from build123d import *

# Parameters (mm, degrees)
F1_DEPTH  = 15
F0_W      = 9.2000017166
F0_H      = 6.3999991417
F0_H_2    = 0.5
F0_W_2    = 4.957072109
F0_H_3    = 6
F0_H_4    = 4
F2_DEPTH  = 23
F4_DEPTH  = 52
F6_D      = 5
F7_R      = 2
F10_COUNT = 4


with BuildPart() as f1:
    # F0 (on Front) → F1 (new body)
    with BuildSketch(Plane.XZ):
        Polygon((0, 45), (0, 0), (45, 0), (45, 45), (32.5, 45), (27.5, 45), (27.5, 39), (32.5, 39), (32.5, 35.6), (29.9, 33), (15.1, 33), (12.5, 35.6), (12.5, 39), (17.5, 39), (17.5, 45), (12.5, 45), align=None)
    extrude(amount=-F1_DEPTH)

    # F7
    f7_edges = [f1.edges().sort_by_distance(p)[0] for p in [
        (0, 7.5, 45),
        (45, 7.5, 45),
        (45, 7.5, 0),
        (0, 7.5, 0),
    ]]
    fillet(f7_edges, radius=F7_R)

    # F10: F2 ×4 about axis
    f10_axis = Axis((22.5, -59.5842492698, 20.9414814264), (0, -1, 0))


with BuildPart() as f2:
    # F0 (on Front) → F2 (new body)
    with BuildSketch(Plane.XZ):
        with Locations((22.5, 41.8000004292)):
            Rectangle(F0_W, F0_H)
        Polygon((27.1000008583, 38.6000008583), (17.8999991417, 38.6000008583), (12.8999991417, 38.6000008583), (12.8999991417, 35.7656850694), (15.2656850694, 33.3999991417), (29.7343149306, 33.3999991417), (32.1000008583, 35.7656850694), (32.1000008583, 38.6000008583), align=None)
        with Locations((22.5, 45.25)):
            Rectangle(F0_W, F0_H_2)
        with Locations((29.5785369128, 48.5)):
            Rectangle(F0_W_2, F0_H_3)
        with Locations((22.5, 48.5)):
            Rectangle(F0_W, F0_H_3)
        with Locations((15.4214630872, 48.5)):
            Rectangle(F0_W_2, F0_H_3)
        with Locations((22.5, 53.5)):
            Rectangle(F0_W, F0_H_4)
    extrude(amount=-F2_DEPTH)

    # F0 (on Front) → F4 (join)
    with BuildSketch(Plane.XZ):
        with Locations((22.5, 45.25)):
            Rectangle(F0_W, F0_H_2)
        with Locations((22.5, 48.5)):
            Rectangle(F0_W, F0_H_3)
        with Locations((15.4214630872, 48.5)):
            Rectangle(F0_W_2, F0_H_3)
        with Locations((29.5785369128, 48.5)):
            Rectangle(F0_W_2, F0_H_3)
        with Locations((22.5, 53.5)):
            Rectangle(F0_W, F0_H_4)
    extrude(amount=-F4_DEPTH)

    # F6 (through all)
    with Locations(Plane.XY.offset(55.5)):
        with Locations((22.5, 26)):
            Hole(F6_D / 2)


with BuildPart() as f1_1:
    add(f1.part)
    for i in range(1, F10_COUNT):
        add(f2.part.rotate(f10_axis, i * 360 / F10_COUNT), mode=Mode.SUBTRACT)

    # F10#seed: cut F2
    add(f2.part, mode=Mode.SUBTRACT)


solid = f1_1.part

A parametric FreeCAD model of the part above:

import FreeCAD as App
import Part
import Sketcher


def edges_at(feature, points):
    """Names of the edges that pass closest to the given points."""
    edges = feature.Shape.Edges
    near = lambda p: min(range(len(edges)), key=lambda i: edges[i].distToShape(Part.Vertex(*p))[0])
    return sorted({f"Edge{near(p) + 1}" for p in points})

doc = App.newDocument("Part")
params = doc.addObject("Spreadsheet::Sheet", "Params")
for row, (alias, value) in enumerate([
    ("sketch1_width", "45 mm"),
    ("sketch1_width2", "5 mm"),
    ("sketch1_height", "6 mm"),
    ("sketch1_width3", "17.5 mm"),
    ("sketch1_width4", "14.8 mm"),
    ("pad1_length", "15 mm"),
    ("fillet_radius", "2 mm"),
    ("sketch2_width", "5 mm"),
    ("sketch2_height", "6 mm"),
    ("sketch2_height2", "4 mm"),
    ("sketch2_width2", "9.200002 mm"),
    ("sketch2_height3", "6.899999 mm"),
    ("pad2_length", "23 mm"),
    ("sketch3_height", "6 mm"),
    ("sketch3_height2", "4 mm"),
    ("sketch3_width", "9.200002 mm"),
    ("sketch3_height3", "0.5 mm"),
    ("pad3_length", "52 mm"),
    ("sketch4_diameter", "5 mm"),
    ("hole_diameter", "5 mm"),
], start=1):
    params.set(f"A{row}", alias)
    params.set(f"B{row}", "=" + value)
    params.setAlias(f"B{row}", alias)

body = doc.addObject("PartDesign::Body", "Body")

# Sketch on XZ plane
sketch1 = body.newObject("Sketcher::SketchObject", "Sketch")
sketch1.AttachmentSupport = (doc.getObject("XZ_Plane"), [""])
sketch1.MapMode = "FlatFace"
sketch1.addGeometry([
    Part.LineSegment(App.Vector(0, 45, 0), App.Vector(0, 0, 0)),  # 0
    Part.LineSegment(App.Vector(0, 0, 0), App.Vector(45, 0, 0)),  # 1
    Part.LineSegment(App.Vector(45, 0, 0), App.Vector(45, 45, 0)),  # 2
    Part.LineSegment(App.Vector(45, 45, 0), App.Vector(27.5, 45, 0)),  # 3
    Part.LineSegment(App.Vector(27.5, 45, 0), App.Vector(27.5, 39, 0)),  # 4
    Part.LineSegment(App.Vector(27.5, 39, 0), App.Vector(32.5, 39, 0)),  # 5
    Part.LineSegment(App.Vector(32.5, 39, 0), App.Vector(32.5, 35.6, 0)),  # 6
    Part.LineSegment(App.Vector(32.5, 35.6, 0), App.Vector(29.9, 33, 0)),  # 7
    Part.LineSegment(App.Vector(29.9, 33, 0), App.Vector(15.1, 33, 0)),  # 8
    Part.LineSegment(App.Vector(15.1, 33, 0), App.Vector(12.5, 35.6, 0)),  # 9
    Part.LineSegment(App.Vector(12.5, 35.6, 0), App.Vector(12.5, 39, 0)),  # 10
    Part.LineSegment(App.Vector(12.5, 39, 0), App.Vector(17.5, 39, 0)),  # 11
    Part.LineSegment(App.Vector(17.5, 39, 0), App.Vector(17.5, 45, 0)),  # 12
    Part.LineSegment(App.Vector(17.5, 45, 0), App.Vector(0, 45, 0)),  # 13
], False)
sketch1.addConstraint([
    Sketcher.Constraint("Coincident", 0, 2, 1, 1),
    Sketcher.Constraint("Coincident", 1, 2, 2, 1),
    Sketcher.Constraint("Coincident", 2, 2, 3, 1),
    Sketcher.Constraint("Coincident", 3, 2, 4, 1),
    Sketcher.Constraint("Coincident", 4, 2, 5, 1),
    Sketcher.Constraint("Coincident", 5, 2, 6, 1),
    Sketcher.Constraint("Coincident", 6, 2, 7, 1),
    Sketcher.Constraint("Coincident", 7, 2, 8, 1),
    Sketcher.Constraint("Coincident", 8, 2, 9, 1),
    Sketcher.Constraint("Coincident", 9, 2, 10, 1),
    Sketcher.Constraint("Coincident", 10, 2, 11, 1),
    Sketcher.Constraint("Coincident", 11, 2, 12, 1),
    Sketcher.Constraint("Coincident", 12, 2, 13, 1),
    Sketcher.Constraint("Coincident", 13, 2, 0, 1),
    Sketcher.Constraint("Vertical", 0),
    Sketcher.Constraint("Horizontal", 1),
    Sketcher.Constraint("Vertical", 2),
    Sketcher.Constraint("Horizontal", 3),
    Sketcher.Constraint("Vertical", 4),
    Sketcher.Constraint("Horizontal", 5),
    Sketcher.Constraint("Vertical", 6),
    Sketcher.Constraint("Horizontal", 8),
    Sketcher.Constraint("Vertical", 10),
    Sketcher.Constraint("Horizontal", 11),
    Sketcher.Constraint("Vertical", 12),
    Sketcher.Constraint("Horizontal", 13),
    Sketcher.Constraint("Coincident", 0, 2, -1, 1),
    Sketcher.Constraint("Perpendicular", 7, 9),
    Sketcher.Constraint("Horizontal", 6, 2, 9, 2),
    Sketcher.Constraint("Horizontal", 5, 2, 10, 2),
    Sketcher.Constraint("Horizontal", 3, 2, 12, 2),
    Sketcher.Constraint("Equal", 5, 11),
    Sketcher.Constraint("Equal", 3, 13),
    Sketcher.Constraint("Equal", 1, 0),
    Sketcher.Constraint("Equal", 7, 9),
    Sketcher.Constraint("DistanceX", 1, 1, 1, 2, 45.0),
    Sketcher.Constraint("DistanceX", 5, 1, 5, 2, 5.0),
    Sketcher.Constraint("DistanceY", 4, 2, 4, 1, 6.0),
    Sketcher.Constraint("DistanceX", 3, 2, 3, 1, 17.5),
    Sketcher.Constraint("DistanceX", 8, 2, 8, 1, 14.8),
    Sketcher.Constraint("DistanceY", 6, 2, 6, 1, 3.4),
])
sketch1.setExpression("Constraints[35]", "Params.sketch1_width")
sketch1.setExpression("Constraints[36]", "Params.sketch1_width2")
sketch1.setExpression("Constraints[37]", "Params.sketch1_height")
sketch1.setExpression("Constraints[38]", "Params.sketch1_width3")
sketch1.setExpression("Constraints[39]", "Params.sketch1_width4")
pad1 = body.newObject("PartDesign::Pad", "Pad")
pad1.Profile = sketch1
pad1.setExpression("Length", "Params.pad1_length")
pad1.Reversed = True
doc.recompute()

fillet = body.newObject("PartDesign::Fillet", "Fillet")
fillet.Base = (pad1, edges_at(pad1, [
    (0, 7.5, 45),
    (45, 7.5, 45),
    (45, 7.5, 0),
    (0, 7.5, 0),
]))
fillet.setExpression("Radius", "Params.fillet_radius")
body2 = doc.addObject("PartDesign::Body", "Body001")

# Sketch on XZ plane
sketch2 = body2.newObject("Sketcher::SketchObject", "Sketch001")
sketch2.AttachmentSupport = (doc.getObject("XZ_Plane001"), [""])
sketch2.MapMode = "FlatFace"
sketch2.addGeometry([
    Part.LineSegment(App.Vector(17.899999, 38.600001, 0), App.Vector(12.899999, 38.600001, 0)),  # 0
    Part.LineSegment(App.Vector(12.899999, 38.600001, 0), App.Vector(12.899999, 35.765685, 0)),  # 1
    Part.LineSegment(App.Vector(12.899999, 35.765685, 0), App.Vector(15.265685, 33.399999, 0)),  # 2
    Part.LineSegment(App.Vector(15.265685, 33.399999, 0), App.Vector(29.734315, 33.399999, 0)),  # 3
    Part.LineSegment(App.Vector(29.734315, 33.399999, 0), App.Vector(32.100001, 35.765685, 0)),  # 4
    Part.LineSegment(App.Vector(32.100001, 35.765685, 0), App.Vector(32.100001, 38.600001, 0)),  # 5
    Part.LineSegment(App.Vector(32.100001, 38.600001, 0), App.Vector(27.100001, 38.600001, 0)),  # 6
    Part.LineSegment(App.Vector(27.100001, 38.600001, 0), App.Vector(27.100001, 45.5, 0)),  # 7
    Part.LineSegment(App.Vector(27.100001, 45.5, 0), App.Vector(32.057073, 45.5, 0)),  # 8
    Part.LineSegment(App.Vector(32.057073, 45.5, 0), App.Vector(32.057073, 51.5, 0)),  # 9
    Part.LineSegment(App.Vector(32.057073, 51.5, 0), App.Vector(27.100001, 51.5, 0)),  # 10
    Part.LineSegment(App.Vector(27.100001, 51.5, 0), App.Vector(27.100001, 55.5, 0)),  # 11
    Part.LineSegment(App.Vector(27.100001, 55.5, 0), App.Vector(17.899999, 55.5, 0)),  # 12
    Part.LineSegment(App.Vector(17.899999, 55.5, 0), App.Vector(17.899999, 51.5, 0)),  # 13
    Part.LineSegment(App.Vector(17.899999, 51.5, 0), App.Vector(12.942927, 51.5, 0)),  # 14
    Part.LineSegment(App.Vector(12.942927, 51.5, 0), App.Vector(12.942927, 45.5, 0)),  # 15
    Part.LineSegment(App.Vector(12.942927, 45.5, 0), App.Vector(17.899999, 45.5, 0)),  # 16
    Part.LineSegment(App.Vector(17.899999, 45.5, 0), App.Vector(17.899999, 38.600001, 0)),  # 17
], False)
sketch2.addConstraint([
    Sketcher.Constraint("Coincident", 0, 2, 1, 1),
    Sketcher.Constraint("Coincident", 1, 2, 2, 1),
    Sketcher.Constraint("Coincident", 2, 2, 3, 1),
    Sketcher.Constraint("Coincident", 3, 2, 4, 1),
    Sketcher.Constraint("Coincident", 4, 2, 5, 1),
    Sketcher.Constraint("Coincident", 5, 2, 6, 1),
    Sketcher.Constraint("Coincident", 6, 2, 7, 1),
    Sketcher.Constraint("Coincident", 7, 2, 8, 1),
    Sketcher.Constraint("Coincident", 8, 2, 9, 1),
    Sketcher.Constraint("Coincident", 9, 2, 10, 1),
    Sketcher.Constraint("Coincident", 10, 2, 11, 1),
    Sketcher.Constraint("Coincident", 11, 2, 12, 1),
    Sketcher.Constraint("Coincident", 12, 2, 13, 1),
    Sketcher.Constraint("Coincident", 13, 2, 14, 1),
    Sketcher.Constraint("Coincident", 14, 2, 15, 1),
    Sketcher.Constraint("Coincident", 15, 2, 16, 1),
    Sketcher.Constraint("Coincident", 16, 2, 17, 1),
    Sketcher.Constraint("Coincident", 17, 2, 0, 1),
    Sketcher.Constraint("Horizontal", 0),
    Sketcher.Constraint("Vertical", 1),
    Sketcher.Constraint("Horizontal", 3),
    Sketcher.Constraint("Vertical", 5),
    Sketcher.Constraint("Horizontal", 6),
    Sketcher.Constraint("Vertical", 7),
    Sketcher.Constraint("Horizontal", 8),
    Sketcher.Constraint("Vertical", 9),
    Sketcher.Constraint("Horizontal", 10),
    Sketcher.Constraint("Vertical", 11),
    Sketcher.Constraint("Horizontal", 12),
    Sketcher.Constraint("Vertical", 13),
    Sketcher.Constraint("Horizontal", 14),
    Sketcher.Constraint("Vertical", 15),
    Sketcher.Constraint("Horizontal", 16),
    Sketcher.Constraint("Vertical", 17),
    Sketcher.Constraint("Perpendicular", 2, 4),
    Sketcher.Constraint("Horizontal", 1, 2, 4, 2),
    Sketcher.Constraint("Horizontal", 0, 2, 5, 2),
    Sketcher.Constraint("Horizontal", 10, 2, 13, 2),
    Sketcher.Constraint("Horizontal", 8, 2, 15, 2),
    Sketcher.Constraint("Vertical", 7, 2, 10, 2),
    Sketcher.Constraint("Vertical", 13, 2, 16, 2),
    Sketcher.Constraint("Equal", 0, 6),
    Sketcher.Constraint("Equal", 10, 14),
    Sketcher.Constraint("Equal", 2, 4),
    Sketcher.Constraint("DistanceX", 0, 2, 0, 1, 5.0),
    Sketcher.Constraint("DistanceY", 9, 1, 9, 2, 6.0),
    Sketcher.Constraint("DistanceY", 11, 1, 11, 2, 4.0),
    Sketcher.Constraint("DistanceX", 12, 2, 12, 1, 9.200002),
    Sketcher.Constraint("DistanceY", 7, 1, 7, 2, 6.899999),
    Sketcher.Constraint("DistanceX", -1, 1, 0, 2, 12.899999),
    Sketcher.Constraint("DistanceY", -1, 1, 0, 2, 38.600001),
    Sketcher.Constraint("DistanceY", -1, 1, 2, 2, 33.399999),
    Sketcher.Constraint("DistanceX", 3, 1, 3, 2, 14.46863),
    Sketcher.Constraint("DistanceX", 8, 1, 8, 2, 4.957072),
])
sketch2.setExpression("Constraints[44]", "Params.sketch2_width")
sketch2.setExpression("Constraints[45]", "Params.sketch2_height")
sketch2.setExpression("Constraints[46]", "Params.sketch2_height2")
sketch2.setExpression("Constraints[47]", "Params.sketch2_width2")
sketch2.setExpression("Constraints[48]", "Params.sketch2_height3")
pad2 = body2.newObject("PartDesign::Pad", "Pad001")
pad2.Profile = sketch2
pad2.setExpression("Length", "Params.pad2_length")
pad2.Reversed = True

# Sketch on XZ plane
sketch3 = body2.newObject("Sketcher::SketchObject", "Sketch002")
sketch3.AttachmentSupport = (doc.getObject("XZ_Plane001"), [""])
sketch3.MapMode = "FlatFace"
sketch3.addGeometry([
    Part.LineSegment(App.Vector(17.899999, 45, 0), App.Vector(27.100001, 45, 0)),  # 0
    Part.LineSegment(App.Vector(27.100001, 45, 0), App.Vector(27.100001, 45.5, 0)),  # 1
    Part.LineSegment(App.Vector(27.100001, 45.5, 0), App.Vector(32.057073, 45.5, 0)),  # 2
    Part.LineSegment(App.Vector(32.057073, 45.5, 0), App.Vector(32.057073, 51.5, 0)),  # 3
    Part.LineSegment(App.Vector(32.057073, 51.5, 0), App.Vector(27.100001, 51.5, 0)),  # 4
    Part.LineSegment(App.Vector(27.100001, 51.5, 0), App.Vector(27.100001, 55.5, 0)),  # 5
    Part.LineSegment(App.Vector(27.100001, 55.5, 0), App.Vector(17.899999, 55.5, 0)),  # 6
    Part.LineSegment(App.Vector(17.899999, 55.5, 0), App.Vector(17.899999, 51.5, 0)),  # 7
    Part.LineSegment(App.Vector(17.899999, 51.5, 0), App.Vector(12.942927, 51.5, 0)),  # 8
    Part.LineSegment(App.Vector(12.942927, 51.5, 0), App.Vector(12.942927, 45.5, 0)),  # 9
    Part.LineSegment(App.Vector(12.942927, 45.5, 0), App.Vector(17.899999, 45.5, 0)),  # 10
    Part.LineSegment(App.Vector(17.899999, 45.5, 0), App.Vector(17.899999, 45, 0)),  # 11
], False)
sketch3.addConstraint([
    Sketcher.Constraint("Coincident", 0, 2, 1, 1),
    Sketcher.Constraint("Coincident", 1, 2, 2, 1),
    Sketcher.Constraint("Coincident", 2, 2, 3, 1),
    Sketcher.Constraint("Coincident", 3, 2, 4, 1),
    Sketcher.Constraint("Coincident", 4, 2, 5, 1),
    Sketcher.Constraint("Coincident", 5, 2, 6, 1),
    Sketcher.Constraint("Coincident", 6, 2, 7, 1),
    Sketcher.Constraint("Coincident", 7, 2, 8, 1),
    Sketcher.Constraint("Coincident", 8, 2, 9, 1),
    Sketcher.Constraint("Coincident", 9, 2, 10, 1),
    Sketcher.Constraint("Coincident", 10, 2, 11, 1),
    Sketcher.Constraint("Coincident", 11, 2, 0, 1),
    Sketcher.Constraint("Horizontal", 0),
    Sketcher.Constraint("Vertical", 1),
    Sketcher.Constraint("Horizontal", 2),
    Sketcher.Constraint("Vertical", 3),
    Sketcher.Constraint("Horizontal", 4),
    Sketcher.Constraint("Vertical", 5),
    Sketcher.Constraint("Horizontal", 6),
    Sketcher.Constraint("Vertical", 7),
    Sketcher.Constraint("Horizontal", 8),
    Sketcher.Constraint("Vertical", 9),
    Sketcher.Constraint("Horizontal", 10),
    Sketcher.Constraint("Vertical", 11),
    Sketcher.Constraint("Horizontal", 4, 2, 7, 2),
    Sketcher.Constraint("Horizontal", 2, 2, 9, 2),
    Sketcher.Constraint("Vertical", 1, 2, 4, 2),
    Sketcher.Constraint("Vertical", 7, 2, 10, 2),
    Sketcher.Constraint("Equal", 4, 8),
    Sketcher.Constraint("DistanceY", 3, 1, 3, 2, 6.0),
    Sketcher.Constraint("DistanceY", 5, 1, 5, 2, 4.0),
    Sketcher.Constraint("DistanceX", 0, 1, 0, 2, 9.200002),
    Sketcher.Constraint("DistanceY", 1, 1, 1, 2, 0.5),
    Sketcher.Constraint("DistanceY", -1, 1, 0, 2, 45.0),
    Sketcher.Constraint("DistanceX", -1, 1, 0, 2, 27.100001),
    Sketcher.Constraint("DistanceX", 2, 1, 2, 2, 4.957072),
])
sketch3.setExpression("Constraints[29]", "Params.sketch3_height")
sketch3.setExpression("Constraints[30]", "Params.sketch3_height2")
sketch3.setExpression("Constraints[31]", "Params.sketch3_width")
sketch3.setExpression("Constraints[32]", "Params.sketch3_height3")
pad3 = body2.newObject("PartDesign::Pad", "Pad002")
pad3.Profile = sketch3
pad3.setExpression("Length", "Params.pad3_length")
pad3.Reversed = True

# Sketch on XY plane
sketch4 = body2.newObject("Sketcher::SketchObject", "Sketch003")
sketch4.AttachmentSupport = (doc.getObject("XY_Plane001"), [""])
sketch4.MapMode = "FlatFace"
sketch4.AttachmentOffset = App.Placement(App.Vector(0, 0, 55.5), App.Rotation())
sketch4.addGeometry(Part.Circle(App.Vector(22.5, 26, 0), App.Vector(0, 0, 1), 2.5), False)
sketch4.addConstraint([
    Sketcher.Constraint("Diameter", 0, 5.0),
    Sketcher.Constraint("DistanceY", -1, 1, 0, 3, 26.0),
    Sketcher.Constraint("DistanceX", -1, 1, 0, 3, 22.5),
])
sketch4.setExpression("Constraints[0]", "Params.sketch4_diameter")
doc.recompute()
hole = body2.newObject("PartDesign::Hole", "Hole")
hole.Profile = sketch4
hole.ThreadType = "None"
hole.setExpression("Diameter", "Params.hole_diameter")
hole.DepthType = "ThroughAll"
doc.recompute()

body3 = doc.addObject("PartDesign::Body", "Body002")
body3.BaseFeature = body2
body3.Placement = App.Placement(App.Vector(43.441481, 0, -1.558519), App.Rotation(App.Vector(0, -1, 0), 90))
boolean = body.newObject("PartDesign::Boolean", "Boolean")
boolean.Type = "Cut"
boolean.addObjects([body3])
doc.recompute()

body4 = doc.addObject("PartDesign::Body", "Body003")
body4.BaseFeature = body2
body4.Placement = App.Placement(App.Vector(45, 0, 41.882963), App.Rotation(App.Vector(0, -1, 0), 180))
boolean2 = body.newObject("PartDesign::Boolean", "Boolean001")
boolean2.Type = "Cut"
boolean2.addObjects([body4])
doc.recompute()

body5 = doc.addObject("PartDesign::Body", "Body004")
body5.BaseFeature = body2
body5.Placement = App.Placement(App.Vector(1.558519, 0, 43.441481), App.Rotation(App.Vector(0, -1, 0), 270))
boolean3 = body.newObject("PartDesign::Boolean", "Boolean002")
boolean3.Type = "Cut"
boolean3.addObjects([body5])
doc.recompute()

boolean4 = body.newObject("PartDesign::Boolean", "Boolean003")
boolean4.Type = "Cut"
boolean4.addObjects([body2])

doc.recompute()
